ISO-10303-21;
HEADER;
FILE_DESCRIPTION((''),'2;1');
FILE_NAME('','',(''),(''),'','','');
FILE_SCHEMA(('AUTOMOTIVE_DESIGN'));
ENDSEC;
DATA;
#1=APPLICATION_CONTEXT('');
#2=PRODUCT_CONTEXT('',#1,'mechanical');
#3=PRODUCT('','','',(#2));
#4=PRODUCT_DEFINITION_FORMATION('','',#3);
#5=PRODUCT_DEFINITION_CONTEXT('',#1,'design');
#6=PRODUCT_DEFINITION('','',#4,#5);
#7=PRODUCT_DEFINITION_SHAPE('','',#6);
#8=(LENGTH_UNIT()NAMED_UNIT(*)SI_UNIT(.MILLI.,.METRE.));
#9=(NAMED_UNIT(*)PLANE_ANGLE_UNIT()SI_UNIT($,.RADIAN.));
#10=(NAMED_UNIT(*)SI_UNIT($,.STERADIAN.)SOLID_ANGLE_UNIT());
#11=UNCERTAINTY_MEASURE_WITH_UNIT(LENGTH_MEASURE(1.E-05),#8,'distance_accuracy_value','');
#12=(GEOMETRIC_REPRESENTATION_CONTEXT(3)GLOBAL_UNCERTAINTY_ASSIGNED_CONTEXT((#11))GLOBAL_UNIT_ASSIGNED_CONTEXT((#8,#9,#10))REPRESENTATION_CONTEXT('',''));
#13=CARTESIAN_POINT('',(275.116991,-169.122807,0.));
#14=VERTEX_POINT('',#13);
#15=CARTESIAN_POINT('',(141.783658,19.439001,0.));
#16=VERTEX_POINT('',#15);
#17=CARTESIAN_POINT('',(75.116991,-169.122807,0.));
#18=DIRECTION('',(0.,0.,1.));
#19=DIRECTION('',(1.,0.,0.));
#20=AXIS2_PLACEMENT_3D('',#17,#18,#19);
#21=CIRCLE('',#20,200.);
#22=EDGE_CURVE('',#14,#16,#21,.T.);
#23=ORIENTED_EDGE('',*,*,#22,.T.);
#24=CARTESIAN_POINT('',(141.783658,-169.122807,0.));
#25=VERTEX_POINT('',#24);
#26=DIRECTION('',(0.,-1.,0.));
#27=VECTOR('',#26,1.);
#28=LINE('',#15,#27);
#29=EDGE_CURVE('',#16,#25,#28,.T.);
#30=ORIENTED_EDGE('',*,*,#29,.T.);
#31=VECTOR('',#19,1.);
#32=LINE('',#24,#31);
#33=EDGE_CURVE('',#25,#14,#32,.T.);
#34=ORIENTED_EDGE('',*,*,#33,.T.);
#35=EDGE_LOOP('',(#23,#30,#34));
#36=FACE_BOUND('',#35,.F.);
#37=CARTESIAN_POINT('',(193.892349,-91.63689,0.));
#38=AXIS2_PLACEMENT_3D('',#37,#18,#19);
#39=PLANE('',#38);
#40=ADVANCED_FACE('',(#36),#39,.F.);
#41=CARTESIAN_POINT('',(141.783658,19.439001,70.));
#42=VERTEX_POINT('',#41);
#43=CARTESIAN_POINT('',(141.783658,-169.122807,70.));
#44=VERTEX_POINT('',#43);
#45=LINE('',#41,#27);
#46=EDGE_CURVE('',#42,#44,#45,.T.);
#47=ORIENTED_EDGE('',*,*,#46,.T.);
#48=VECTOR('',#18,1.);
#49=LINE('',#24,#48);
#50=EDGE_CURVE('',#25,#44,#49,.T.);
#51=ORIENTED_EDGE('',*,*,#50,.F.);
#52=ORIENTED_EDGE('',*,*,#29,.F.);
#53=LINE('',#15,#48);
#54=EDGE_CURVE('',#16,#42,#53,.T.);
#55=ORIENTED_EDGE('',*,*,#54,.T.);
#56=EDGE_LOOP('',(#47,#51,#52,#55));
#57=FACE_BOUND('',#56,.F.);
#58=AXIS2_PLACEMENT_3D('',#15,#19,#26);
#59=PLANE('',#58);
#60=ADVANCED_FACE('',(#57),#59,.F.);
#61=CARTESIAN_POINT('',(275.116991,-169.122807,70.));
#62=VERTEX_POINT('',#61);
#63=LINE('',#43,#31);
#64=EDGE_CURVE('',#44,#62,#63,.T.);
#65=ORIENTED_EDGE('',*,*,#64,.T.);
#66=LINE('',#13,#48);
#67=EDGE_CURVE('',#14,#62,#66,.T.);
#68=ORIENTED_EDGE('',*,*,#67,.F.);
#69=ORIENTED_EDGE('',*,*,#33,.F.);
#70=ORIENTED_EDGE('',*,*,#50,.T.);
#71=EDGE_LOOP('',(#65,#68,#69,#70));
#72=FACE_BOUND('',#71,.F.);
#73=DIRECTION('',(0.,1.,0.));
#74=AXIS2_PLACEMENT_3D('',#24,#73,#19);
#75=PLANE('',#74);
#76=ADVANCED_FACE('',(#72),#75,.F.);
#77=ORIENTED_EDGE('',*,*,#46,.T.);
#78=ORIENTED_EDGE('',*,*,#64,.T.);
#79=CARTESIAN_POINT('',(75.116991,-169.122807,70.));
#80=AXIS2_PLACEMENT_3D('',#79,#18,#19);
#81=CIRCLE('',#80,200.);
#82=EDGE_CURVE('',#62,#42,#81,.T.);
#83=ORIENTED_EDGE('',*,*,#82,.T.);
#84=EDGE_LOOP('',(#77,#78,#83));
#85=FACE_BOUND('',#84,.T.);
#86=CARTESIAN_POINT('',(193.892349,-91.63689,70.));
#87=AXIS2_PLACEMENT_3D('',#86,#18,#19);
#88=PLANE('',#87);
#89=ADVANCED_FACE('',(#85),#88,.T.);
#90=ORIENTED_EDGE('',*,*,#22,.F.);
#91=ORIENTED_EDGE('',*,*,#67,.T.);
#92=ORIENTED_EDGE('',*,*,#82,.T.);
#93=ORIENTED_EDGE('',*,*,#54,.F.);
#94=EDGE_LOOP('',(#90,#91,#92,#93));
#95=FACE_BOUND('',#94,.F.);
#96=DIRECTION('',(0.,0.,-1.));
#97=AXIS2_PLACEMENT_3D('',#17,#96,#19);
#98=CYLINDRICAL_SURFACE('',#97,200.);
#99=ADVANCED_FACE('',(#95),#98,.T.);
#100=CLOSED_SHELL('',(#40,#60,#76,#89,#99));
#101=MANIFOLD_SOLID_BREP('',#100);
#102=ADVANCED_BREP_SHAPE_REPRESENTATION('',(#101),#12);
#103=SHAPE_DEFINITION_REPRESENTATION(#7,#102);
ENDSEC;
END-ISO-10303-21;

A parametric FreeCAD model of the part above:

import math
import FreeCAD as App
import Part
import Sketcher
Q = App.Units.Quantity

doc = App.newDocument("Part")
body = doc.addObject("PartDesign::Body", "Body")

sketch1 = doc.addObject("Sketcher::SketchObject", "Sketch")
body.addObject(sketch1)
sketch1.AttachmentSupport = (doc.XY_Plane, [""])
sketch1.MapMode = "FlatFace"
sketch1.addGeometry([
    Part.LineSegment(App.Vector(141.783658, -169.122807, 0), App.Vector(275.116991, -169.122807, 0)),
    Part.ArcOfCircle(Part.Circle(App.Vector(75.116991, -169.122807, 0), App.Vector(0, 0, 1), 200), math.radians(0), math.radians(70.528779)),
    Part.LineSegment(App.Vector(141.783658, 19.439001, 0), App.Vector(141.783658, -169.122807, 0)),
], False)
sketch1.addConstraint([
    Sketcher.Constraint("Coincident", 0, 2, 1, 1),
    Sketcher.Constraint("Coincident", 1, 2, 2, 1),
    Sketcher.Constraint("Coincident", 2, 2, 0, 1),
    Sketcher.Constraint("Horizontal", 0),
    Sketcher.Constraint("Vertical", 2),
    Sketcher.Constraint("Horizontal", 1, 3, 0, 2),
    Sketcher.Constraint("Radius", 1, Q("200 mm")),
    Sketcher.Constraint("DistanceY", -1, 1, 1, 2, Q("19.439001 mm")),
    Sketcher.Constraint("DistanceY", 2, 2, 2, 1, Q("188.561808 mm")),
    Sketcher.Constraint("DistanceX", -1, 1, 1, 3, Q("75.116991 mm")),
])
pad1 = doc.addObject("PartDesign::Pad", "Pad")
body.addObject(pad1)
pad1.Profile = sketch1
pad1.Length = 70

doc.recompute()
